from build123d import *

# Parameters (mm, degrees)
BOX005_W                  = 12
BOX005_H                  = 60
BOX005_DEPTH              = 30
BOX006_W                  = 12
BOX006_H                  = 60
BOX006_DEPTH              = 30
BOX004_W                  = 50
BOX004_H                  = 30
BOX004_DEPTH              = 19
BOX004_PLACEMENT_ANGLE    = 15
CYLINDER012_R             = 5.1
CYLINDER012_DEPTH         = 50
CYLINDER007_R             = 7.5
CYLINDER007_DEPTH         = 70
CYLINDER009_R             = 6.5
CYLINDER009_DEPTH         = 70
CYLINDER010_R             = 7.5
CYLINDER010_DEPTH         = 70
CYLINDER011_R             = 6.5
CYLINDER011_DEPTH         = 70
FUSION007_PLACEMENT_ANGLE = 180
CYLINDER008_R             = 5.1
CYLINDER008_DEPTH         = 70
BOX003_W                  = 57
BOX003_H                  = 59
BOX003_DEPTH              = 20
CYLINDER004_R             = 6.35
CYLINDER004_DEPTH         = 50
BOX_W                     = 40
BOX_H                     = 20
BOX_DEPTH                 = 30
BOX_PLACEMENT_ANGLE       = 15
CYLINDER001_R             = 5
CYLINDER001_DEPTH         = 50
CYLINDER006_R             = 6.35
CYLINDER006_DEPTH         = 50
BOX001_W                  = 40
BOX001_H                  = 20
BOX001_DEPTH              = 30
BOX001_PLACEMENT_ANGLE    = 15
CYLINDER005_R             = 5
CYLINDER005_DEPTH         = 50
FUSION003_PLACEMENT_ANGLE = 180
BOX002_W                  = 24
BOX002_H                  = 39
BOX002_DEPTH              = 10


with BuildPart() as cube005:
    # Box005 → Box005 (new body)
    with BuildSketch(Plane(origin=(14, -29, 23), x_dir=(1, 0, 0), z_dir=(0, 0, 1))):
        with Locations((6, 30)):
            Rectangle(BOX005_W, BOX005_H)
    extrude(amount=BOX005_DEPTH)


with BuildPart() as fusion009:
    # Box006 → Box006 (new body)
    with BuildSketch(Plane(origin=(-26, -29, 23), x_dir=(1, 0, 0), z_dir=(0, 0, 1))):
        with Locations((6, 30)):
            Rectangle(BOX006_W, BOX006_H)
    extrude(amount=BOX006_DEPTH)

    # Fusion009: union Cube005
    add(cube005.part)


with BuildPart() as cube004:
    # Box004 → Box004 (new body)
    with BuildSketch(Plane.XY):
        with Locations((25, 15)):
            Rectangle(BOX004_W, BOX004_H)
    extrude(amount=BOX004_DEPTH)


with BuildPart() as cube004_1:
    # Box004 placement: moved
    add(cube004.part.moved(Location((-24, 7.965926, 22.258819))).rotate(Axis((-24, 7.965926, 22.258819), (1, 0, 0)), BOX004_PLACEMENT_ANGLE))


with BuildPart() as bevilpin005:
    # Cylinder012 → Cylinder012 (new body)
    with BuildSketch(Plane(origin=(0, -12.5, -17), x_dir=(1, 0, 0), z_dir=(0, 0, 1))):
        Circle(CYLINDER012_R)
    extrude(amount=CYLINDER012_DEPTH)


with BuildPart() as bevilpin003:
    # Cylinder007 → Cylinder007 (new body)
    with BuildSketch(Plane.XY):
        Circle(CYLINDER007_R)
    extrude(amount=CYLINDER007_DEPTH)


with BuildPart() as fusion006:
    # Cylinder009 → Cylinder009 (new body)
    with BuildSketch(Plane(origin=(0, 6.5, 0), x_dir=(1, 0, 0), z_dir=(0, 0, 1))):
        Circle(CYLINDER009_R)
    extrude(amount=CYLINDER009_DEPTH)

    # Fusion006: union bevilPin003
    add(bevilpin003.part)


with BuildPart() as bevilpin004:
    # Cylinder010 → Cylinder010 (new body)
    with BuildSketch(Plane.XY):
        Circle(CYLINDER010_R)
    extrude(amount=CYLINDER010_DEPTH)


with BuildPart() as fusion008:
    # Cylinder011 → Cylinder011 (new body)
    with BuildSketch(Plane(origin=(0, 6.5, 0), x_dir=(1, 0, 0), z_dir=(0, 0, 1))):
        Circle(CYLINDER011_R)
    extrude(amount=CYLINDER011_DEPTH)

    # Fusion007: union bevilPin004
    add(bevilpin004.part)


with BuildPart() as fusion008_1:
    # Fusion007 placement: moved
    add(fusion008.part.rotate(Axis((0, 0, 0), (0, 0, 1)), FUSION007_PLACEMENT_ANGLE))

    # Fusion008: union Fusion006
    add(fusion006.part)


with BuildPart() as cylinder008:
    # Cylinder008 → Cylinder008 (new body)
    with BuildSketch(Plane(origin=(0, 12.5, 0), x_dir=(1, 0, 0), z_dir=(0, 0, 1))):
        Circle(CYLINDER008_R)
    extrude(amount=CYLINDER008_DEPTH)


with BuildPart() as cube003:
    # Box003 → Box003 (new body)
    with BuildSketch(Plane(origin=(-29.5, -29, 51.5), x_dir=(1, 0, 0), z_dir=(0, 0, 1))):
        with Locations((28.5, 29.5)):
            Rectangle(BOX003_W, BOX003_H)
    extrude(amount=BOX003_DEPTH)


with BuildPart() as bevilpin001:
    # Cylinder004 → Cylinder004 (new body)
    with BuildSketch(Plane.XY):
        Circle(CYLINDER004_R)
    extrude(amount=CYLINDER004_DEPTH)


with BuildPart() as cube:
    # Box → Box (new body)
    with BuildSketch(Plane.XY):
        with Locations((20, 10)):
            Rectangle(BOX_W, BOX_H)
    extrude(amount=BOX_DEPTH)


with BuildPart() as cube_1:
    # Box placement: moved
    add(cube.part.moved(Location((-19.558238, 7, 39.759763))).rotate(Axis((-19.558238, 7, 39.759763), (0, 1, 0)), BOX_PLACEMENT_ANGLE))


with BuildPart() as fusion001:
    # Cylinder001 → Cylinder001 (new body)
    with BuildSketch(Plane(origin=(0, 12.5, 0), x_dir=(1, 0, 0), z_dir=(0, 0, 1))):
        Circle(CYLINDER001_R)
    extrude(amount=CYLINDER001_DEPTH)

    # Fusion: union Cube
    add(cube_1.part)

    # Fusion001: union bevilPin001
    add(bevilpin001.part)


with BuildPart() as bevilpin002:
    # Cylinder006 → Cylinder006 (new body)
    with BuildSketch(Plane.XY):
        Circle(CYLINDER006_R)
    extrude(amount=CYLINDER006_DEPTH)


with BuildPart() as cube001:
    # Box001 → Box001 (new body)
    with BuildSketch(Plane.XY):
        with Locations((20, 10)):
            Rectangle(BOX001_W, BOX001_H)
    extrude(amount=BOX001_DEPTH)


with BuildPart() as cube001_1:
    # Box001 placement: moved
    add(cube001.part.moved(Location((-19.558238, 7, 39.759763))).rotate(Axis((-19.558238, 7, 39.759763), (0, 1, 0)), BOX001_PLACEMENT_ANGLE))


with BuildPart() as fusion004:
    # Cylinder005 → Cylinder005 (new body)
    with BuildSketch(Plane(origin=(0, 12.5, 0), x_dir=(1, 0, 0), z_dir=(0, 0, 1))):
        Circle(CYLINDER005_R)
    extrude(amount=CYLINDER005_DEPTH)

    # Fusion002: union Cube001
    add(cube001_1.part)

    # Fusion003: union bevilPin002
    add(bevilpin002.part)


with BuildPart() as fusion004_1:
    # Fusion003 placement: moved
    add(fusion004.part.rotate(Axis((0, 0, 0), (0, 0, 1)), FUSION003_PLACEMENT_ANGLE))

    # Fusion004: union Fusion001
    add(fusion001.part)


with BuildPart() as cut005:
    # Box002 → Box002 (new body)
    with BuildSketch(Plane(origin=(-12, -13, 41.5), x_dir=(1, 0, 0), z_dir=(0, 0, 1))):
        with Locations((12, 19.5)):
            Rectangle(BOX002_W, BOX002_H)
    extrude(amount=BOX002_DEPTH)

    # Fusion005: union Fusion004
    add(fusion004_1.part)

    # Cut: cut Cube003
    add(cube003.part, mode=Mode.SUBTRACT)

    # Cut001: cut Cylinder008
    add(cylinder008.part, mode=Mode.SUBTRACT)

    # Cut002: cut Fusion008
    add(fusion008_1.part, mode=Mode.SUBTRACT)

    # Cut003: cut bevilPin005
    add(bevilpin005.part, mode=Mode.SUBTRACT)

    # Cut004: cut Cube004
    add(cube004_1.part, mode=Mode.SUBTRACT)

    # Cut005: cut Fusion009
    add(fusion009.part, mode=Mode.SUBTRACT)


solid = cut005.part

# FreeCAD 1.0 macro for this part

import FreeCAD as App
import Part
import Sketcher

V = App.Vector
Q = App.Units.Quantity

doc = App.newDocument("Part")
body = doc.addObject("PartDesign::Body", "Body")

# Sketch on XY plane
sketch1 = body.newObject("Sketcher::SketchObject", "Sketch")
sketch1.AttachmentSupport = (doc.getObject("XY_Plane"), [""])
sketch1.MapMode = "FlatFace"
sketch1.AttachmentOffset = App.Placement(V(0, 0, 23), App.Rotation())
sketch1.addGeometry(Part.LineSegment(V(14, 31, 0), V(14, -29, 0)), False)
sketch1.addGeometry(Part.LineSegment(V(14, -29, 0), V(26, -29, 0)), False)
sketch1.addGeometry(Part.LineSegment(V(26, -29, 0), V(26, 31, 0)), False)
sketch1.addGeometry(Part.LineSegment(V(26, 31, 0), V(14, 31, 0)), False)
sketch1.addConstraint(Sketcher.Constraint("Coincident", 0, 2, 1, 1))
sketch1.addConstraint(Sketcher.Constraint("Coincident", 1, 2, 2, 1))
sketch1.addConstraint(Sketcher.Constraint("Coincident", 2, 2, 3, 1))
sketch1.addConstraint(Sketcher.Constraint("Coincident", 3, 2, 0, 1))
sketch1.addConstraint(Sketcher.Constraint("Vertical", 0))
sketch1.addConstraint(Sketcher.Constraint("Horizontal", 1))
sketch1.addConstraint(Sketcher.Constraint("Vertical", 2))
sketch1.addConstraint(Sketcher.Constraint("Horizontal", 3))
sketch1.addConstraint(Sketcher.Constraint("DistanceX", 1, 1, 1, 2, Q("12 mm")))
sketch1.addConstraint(Sketcher.Constraint("DistanceY", 0, 2, 0, 1, Q("60 mm")))
sketch1.addConstraint(Sketcher.Constraint("DistanceX", -1, 1, 0, 2, Q("14 mm")))
sketch1.addConstraint(Sketcher.Constraint("DistanceY", 0, 2, -1, 1, Q("29 mm")))
pad1 = body.newObject("PartDesign::Pad", "Pad")
pad1.Profile = sketch1
pad1.Length = 30
body2 = doc.addObject("PartDesign::Body", "Body001")
body2.AllowCompound = True

# Sketch on XY plane
sketch2 = body2.newObject("Sketcher::SketchObject", "Sketch001")
sketch2.AttachmentSupport = (doc.getObject("XY_Plane001"), [""])
sketch2.MapMode = "FlatFace"
sketch2.AttachmentOffset = App.Placement(V(0, 0, 23), App.Rotation())
sketch2.addGeometry(Part.LineSegment(V(-26, 31, 0), V(-26, -29, 0)), False)
sketch2.addGeometry(Part.LineSegment(V(-26, -29, 0), V(-14, -29, 0)), False)
sketch2.addGeometry(Part.LineSegment(V(-14, -29, 0), V(-14, 31, 0)), False)
sketch2.addGeometry(Part.LineSegment(V(-14, 31, 0), V(-26, 31, 0)), False)
sketch2.addConstraint(Sketcher.Constraint("Coincident", 0, 2, 1, 1))
sketch2.addConstraint(Sketcher.Constraint("Coincident", 1, 2, 2, 1))
sketch2.addConstraint(Sketcher.Constraint("Coincident", 2, 2, 3, 1))
sketch2.addConstraint(Sketcher.Constraint("Coincident", 3, 2, 0, 1))
sketch2.addConstraint(Sketcher.Constraint("Vertical", 0))
sketch2.addConstraint(Sketcher.Constraint("Horizontal", 1))
sketch2.addConstraint(Sketcher.Constraint("Vertical", 2))
sketch2.addConstraint(Sketcher.Constraint("Horizontal", 3))
sketch2.addConstraint(Sketcher.Constraint("DistanceX", 1, 1, 1, 2, Q("12 mm")))
sketch2.addConstraint(Sketcher.Constraint("DistanceY", 0, 2, 0, 1, Q("60 mm")))
sketch2.addConstraint(Sketcher.Constraint("DistanceX", 0, 2, -1, 1, Q("26 mm")))
sketch2.addConstraint(Sketcher.Constraint("DistanceY", 0, 2, -1, 1, Q("29 mm")))
pad2 = body2.newObject("PartDesign::Pad", "Pad001")
pad2.Profile = sketch2
pad2.Length = 30
doc.recompute()

boolean = body2.newObject("PartDesign::Boolean", "Boolean")
boolean.Type = "Fuse"
boolean.addObjects([body])
body3 = doc.addObject("PartDesign::Body", "Body002")

# Sketch on XY plane
sketch3 = body3.newObject("Sketcher::SketchObject", "Sketch002")
sketch3.AttachmentSupport = (doc.getObject("XY_Plane002"), [""])
sketch3.MapMode = "FlatFace"
sketch3.addGeometry(Part.LineSegment(V(0, 30, 0), V(0, 0, 0)), False)
sketch3.addGeometry(Part.LineSegment(V(0, 0, 0), V(50, 0, 0)), False)
sketch3.addGeometry(Part.LineSegment(V(50, 0, 0), V(50, 30, 0)), False)
sketch3.addGeometry(Part.LineSegment(V(50, 30, 0), V(0, 30, 0)), False)
sketch3.addConstraint(Sketcher.Constraint("Coincident", 0, 2, 1, 1))
sketch3.addConstraint(Sketcher.Constraint("Coincident", 1, 2, 2, 1))
sketch3.addConstraint(Sketcher.Constraint("Coincident", 2, 2, 3, 1))
sketch3.addConstraint(Sketcher.Constraint("Coincident", 3, 2, 0, 1))
sketch3.addConstraint(Sketcher.Constraint("Vertical", 0))
sketch3.addConstraint(Sketcher.Constraint("Horizontal", 1))
sketch3.addConstraint(Sketcher.Constraint("Vertical", 2))
sketch3.addConstraint(Sketcher.Constraint("Horizontal", 3))
sketch3.addConstraint(Sketcher.Constraint("Coincident", 0, 2, -1, 1))
sketch3.addConstraint(Sketcher.Constraint("DistanceX", 1, 1, 1, 2, Q("50 mm")))
sketch3.addConstraint(Sketcher.Constraint("DistanceY", 0, 2, 0, 1, Q("30 mm")))
pad3 = body3.newObject("PartDesign::Pad", "Pad002")
pad3.Profile = sketch3
pad3.Length = 19
body4 = doc.addObject("PartDesign::Body", "Body003")
doc.recompute()

body3.Placement = App.Placement(V(-24, 7.965926, 22.258819), App.Rotation(V(1, 0, 0), 15))
boolean2 = body4.newObject("PartDesign::Boolean", "Boolean001")
boolean2.Type = "Fuse"
boolean2.addObjects([body3])
body5 = doc.addObject("PartDesign::Body", "Body004")

# Sketch on XY plane
sketch4 = body5.newObject("Sketcher::SketchObject", "Sketch003")
sketch4.AttachmentSupport = (doc.getObject("XY_Plane004"), [""])
sketch4.MapMode = "FlatFace"
sketch4.AttachmentOffset = App.Placement(V(0, 0, -17), App.Rotation())
sketch4.addGeometry(Part.Circle(V(0, -12.5, 0), V(0, 0, 1), 5.1), False)
sketch4.addConstraint(Sketcher.Constraint("PointOnObject", 0, 3, -2))
sketch4.addConstraint(Sketcher.Constraint("Diameter", 0, Q("10.2 mm")))
sketch4.addConstraint(Sketcher.Constraint("DistanceY", 0, 3, -1, 1, Q("12.5 mm")))
pad4 = body5.newObject("PartDesign::Pad", "Pad003")
pad4.Profile = sketch4
pad4.Length = 50
body6 = doc.addObject("PartDesign::Body", "Body005")

# Sketch on XY plane
sketch5 = body6.newObject("Sketcher::SketchObject", "Sketch004")
sketch5.AttachmentSupport = (doc.getObject("XY_Plane005"), [""])
sketch5.MapMode = "FlatFace"
sketch5.addGeometry(Part.Circle(V(0, 0, 0), V(0, 0, 1), 7.5), False)
sketch5.addConstraint(Sketcher.Constraint("Coincident", 0, 3, -1, 1))
sketch5.addConstraint(Sketcher.Constraint("Diameter", 0, Q("15 mm")))
pad5 = body6.newObject("PartDesign::Pad", "Pad004")
pad5.Profile = sketch5
pad5.Length = 70
body7 = doc.addObject("PartDesign::Body", "Body006")

# Sketch on XY plane
sketch6 = body7.newObject("Sketcher::SketchObject", "Sketch005")
sketch6.AttachmentSupport = (doc.getObject("XY_Plane006"), [""])
sketch6.MapMode = "FlatFace"
sketch6.addGeometry(Part.Circle(V(0, 6.5, 0), V(0, 0, 1), 6.5), False)
sketch6.addConstraint(Sketcher.Constraint("PointOnObject", 0, 3, -2))
sketch6.addConstraint(Sketcher.Constraint("Diameter", 0, Q("13 mm")))
sketch6.addConstraint(Sketcher.Constraint("DistanceY", -1, 1, 0, 3, Q("6.5 mm")))
pad6 = body7.newObject("PartDesign::Pad", "Pad005")
pad6.Profile = sketch6
pad6.Length = 70
doc.recompute()

boolean3 = body7.newObject("PartDesign::Boolean", "Boolean002")
boolean3.Type = "Fuse"
boolean3.addObjects([body6])
body8 = doc.addObject("PartDesign::Body", "Body007")

# Sketch on XY plane
sketch7 = body8.newObject("Sketcher::SketchObject", "Sketch006")
sketch7.AttachmentSupport = (doc.getObject("XY_Plane007"), [""])
sketch7.MapMode = "FlatFace"
sketch7.addGeometry(Part.Circle(V(0, 0, 0), V(0, 0, 1), 7.5), False)
sketch7.addConstraint(Sketcher.Constraint("Coincident", 0, 3, -1, 1))
sketch7.addConstraint(Sketcher.Constraint("Diameter", 0, Q("15 mm")))
pad7 = body8.newObject("PartDesign::Pad", "Pad006")
pad7.Profile = sketch7
pad7.Length = 70
body9 = doc.addObject("PartDesign::Body", "Body008")

# Sketch on XY plane
sketch8 = body9.newObject("Sketcher::SketchObject", "Sketch007")
sketch8.AttachmentSupport = (doc.getObject("XY_Plane008"), [""])
sketch8.MapMode = "FlatFace"
sketch8.addGeometry(Part.Circle(V(0, 6.5, 0), V(0, 0, 1), 6.5), False)
sketch8.addConstraint(Sketcher.Constraint("PointOnObject", 0, 3, -2))
sketch8.addConstraint(Sketcher.Constraint("Diameter", 0, Q("13 mm")))
sketch8.addConstraint(Sketcher.Constraint("DistanceY", -1, 1, 0, 3, Q("6.5 mm")))
pad8 = body9.newObject("PartDesign::Pad", "Pad007")
pad8.Profile = sketch8
pad8.Length = 70
doc.recompute()

boolean4 = body9.newObject("PartDesign::Boolean", "Boolean003")
boolean4.Type = "Fuse"
boolean4.addObjects([body8])
body10 = doc.addObject("PartDesign::Body", "Body009")
doc.recompute()

body9.Placement = App.Placement(V(0, 0, 0), App.Rotation(V(0, 0, 1), 180))
boolean5 = body10.newObject("PartDesign::Boolean", "Boolean004")
boolean5.Type = "Fuse"
boolean5.addObjects([body9])
doc.recompute()

boolean6 = body10.newObject("PartDesign::Boolean", "Boolean005")
boolean6.Type = "Fuse"
boolean6.addObjects([body7])
body11 = doc.addObject("PartDesign::Body", "Body010")

# Sketch on XY plane
sketch9 = body11.newObject("Sketcher::SketchObject", "Sketch008")
sketch9.AttachmentSupport = (doc.getObject("XY_Plane010"), [""])
sketch9.MapMode = "FlatFace"
sketch9.addGeometry(Part.Circle(V(0, 12.5, 0), V(0, 0, 1), 5.1), False)
sketch9.addConstraint(Sketcher.Constraint("PointOnObject", 0, 3, -2))
sketch9.addConstraint(Sketcher.Constraint("Diameter", 0, Q("10.2 mm")))
sketch9.addConstraint(Sketcher.Constraint("DistanceY", -1, 1, 0, 3, Q("12.5 mm")))
pad9 = body11.newObject("PartDesign::Pad", "Pad008")
pad9.Profile = sketch9
pad9.Length = 70
body12 = doc.addObject("PartDesign::Body", "Body011")

# Sketch on XY plane
sketch10 = body12.newObject("Sketcher::SketchObject", "Sketch009")
sketch10.AttachmentSupport = (doc.getObject("XY_Plane011"), [""])
sketch10.MapMode = "FlatFace"
sketch10.AttachmentOffset = App.Placement(V(0, 0, 51.5), App.Rotation())
sketch10.addGeometry(Part.LineSegment(V(-29.5, 30, 0), V(-29.5, -29, 0)), False)
sketch10.addGeometry(Part.LineSegment(V(-29.5, -29, 0), V(27.5, -29, 0)), False)
sketch10.addGeometry(Part.LineSegment(V(27.5, -29, 0), V(27.5, 30, 0)), False)
sketch10.addGeometry(Part.LineSegment(V(27.5, 30, 0), V(-29.5, 30, 0)), False)
sketch10.addConstraint(Sketcher.Constraint("Coincident", 0, 2, 1, 1))
sketch10.addConstraint(Sketcher.Constraint("Coincident", 1, 2, 2, 1))
sketch10.addConstraint(Sketcher.Constraint("Coincident", 2, 2, 3, 1))
sketch10.addConstraint(Sketcher.Constraint("Coincident", 3, 2, 0, 1))
sketch10.addConstraint(Sketcher.Constraint("Vertical", 0))
sketch10.addConstraint(Sketcher.Constraint("Horizontal", 1))
sketch10.addConstraint(Sketcher.Constraint("Vertical", 2))
sketch10.addConstraint(Sketcher.Constraint("Horizontal", 3))
sketch10.addConstraint(Sketcher.Constraint("DistanceX", 1, 1, 1, 2, Q("57 mm")))
sketch10.addConstraint(Sketcher.Constraint("DistanceY", 0, 2, 0, 1, Q("59 mm")))
sketch10.addConstraint(Sketcher.Constraint("DistanceY", 0, 2, -1, 1, Q("29 mm")))
sketch10.addConstraint(Sketcher.Constraint("DistanceX", 0, 2, -1, 1, Q("29.5 mm")))
pad10 = body12.newObject("PartDesign::Pad", "Pad009")
pad10.Profile = sketch10
pad10.Length = 20
body13 = doc.addObject("PartDesign::Body", "Body012")

# Sketch on XY plane
sketch11 = body13.newObject("Sketcher::SketchObject", "Sketch010")
sketch11.AttachmentSupport = (doc.getObject("XY_Plane012"), [""])
sketch11.MapMode = "FlatFace"
sketch11.addGeometry(Part.Circle(V(0, 0, 0), V(0, 0, 1), 6.35), False)
sketch11.addConstraint(Sketcher.Constraint("Coincident", 0, 3, -1, 1))
sketch11.addConstraint(Sketcher.Constraint("Diameter", 0, Q("12.7 mm")))
pad11 = body13.newObject("PartDesign::Pad", "Pad010")
pad11.Profile = sketch11
pad11.Length = 50
body14 = doc.addObject("PartDesign::Body", "Body013")

# Sketch on XY plane
sketch12 = body14.newObject("Sketcher::SketchObject", "Sketch011")
sketch12.AttachmentSupport = (doc.getObject("XY_Plane013"), [""])
sketch12.MapMode = "FlatFace"
sketch12.addGeometry(Part.LineSegment(V(0, 20, 0), V(0, 0, 0)), False)
sketch12.addGeometry(Part.LineSegment(V(0, 0, 0), V(40, 0, 0)), False)
sketch12.addGeometry(Part.LineSegment(V(40, 0, 0), V(40, 20, 0)), False)
sketch12.addGeometry(Part.LineSegment(V(40, 20, 0), V(0, 20, 0)), False)
sketch12.addConstraint(Sketcher.Constraint("Coincident", 0, 2, 1, 1))
sketch12.addConstraint(Sketcher.Constraint("Coincident", 1, 2, 2, 1))
sketch12.addConstraint(Sketcher.Constraint("Coincident", 2, 2, 3, 1))
sketch12.addConstraint(Sketcher.Constraint("Coincident", 3, 2, 0, 1))
sketch12.addConstraint(Sketcher.Constraint("Vertical", 0))
sketch12.addConstraint(Sketcher.Constraint("Horizontal", 1))
sketch12.addConstraint(Sketcher.Constraint("Vertical", 2))
sketch12.addConstraint(Sketcher.Constraint("Horizontal", 3))
sketch12.addConstraint(Sketcher.Constraint("Coincident", 0, 2, -1, 1))
sketch12.addConstraint(Sketcher.Constraint("DistanceX", 1, 1, 1, 2, Q("40 mm")))
sketch12.addConstraint(Sketcher.Constraint("DistanceY", 0, 2, 0, 1, Q("20 mm")))
pad12 = body14.newObject("PartDesign::Pad", "Pad011")
pad12.Profile = sketch12
pad12.Length = 30
body15 = doc.addObject("PartDesign::Body", "Body014")
doc.recompute()

body14.Placement = App.Placement(V(-19.558238, 7, 39.759763), App.Rotation(V(0, 1, 0), 15))
boolean7 = body15.newObject("PartDesign::Boolean", "Boolean006")
boolean7.Type = "Fuse"
boolean7.addObjects([body14])
body16 = doc.addObject("PartDesign::Body", "Body015")
body16.AllowCompound = True

# Sketch on XY plane
sketch13 = body16.newObject("Sketcher::SketchObject", "Sketch012")
sketch13.AttachmentSupport = (doc.getObject("XY_Plane015"), [""])
sketch13.MapMode = "FlatFace"
sketch13.addGeometry(Part.Circle(V(0, 12.5, 0), V(0, 0, 1), 5), False)
sketch13.addConstraint(Sketcher.Constraint("PointOnObject", 0, 3, -2))
sketch13.addConstraint(Sketcher.Constraint("Diameter", 0, Q("10 mm")))
sketch13.addConstraint(Sketcher.Constraint("DistanceY", -1, 1, 0, 3, Q("12.5 mm")))
pad13 = body16.newObject("PartDesign::Pad", "Pad012")
pad13.Profile = sketch13
pad13.Length = 50
doc.recompute()

boolean8 = body16.newObject("PartDesign::Boolean", "Boolean007")
boolean8.Type = "Fuse"
boolean8.addObjects([body15])
doc.recompute()

boolean9 = body16.newObject("PartDesign::Boolean", "Boolean008")
boolean9.Type = "Fuse"
boolean9.addObjects([body13])
body17 = doc.addObject("PartDesign::Body", "Body016")

# Sketch on XY plane
sketch14 = body17.newObject("Sketcher::SketchObject", "Sketch013")
sketch14.AttachmentSupport = (doc.getObject("XY_Plane016"), [""])
sketch14.MapMode = "FlatFace"
sketch14.addGeometry(Part.Circle(V(0, 0, 0), V(0, 0, 1), 6.35), False)
sketch14.addConstraint(Sketcher.Constraint("Coincident", 0, 3, -1, 1))
sketch14.addConstraint(Sketcher.Constraint("Diameter", 0, Q("12.7 mm")))
pad14 = body17.newObject("PartDesign::Pad", "Pad013")
pad14.Profile = sketch14
pad14.Length = 50
body18 = doc.addObject("PartDesign::Body", "Body017")

# Sketch on XY plane
sketch15 = body18.newObject("Sketcher::SketchObject", "Sketch014")
sketch15.AttachmentSupport = (doc.getObject("XY_Plane017"), [""])
sketch15.MapMode = "FlatFace"
sketch15.addGeometry(Part.LineSegment(V(0, 20, 0), V(0, 0, 0)), False)
sketch15.addGeometry(Part.LineSegment(V(0, 0, 0), V(40, 0, 0)), False)
sketch15.addGeometry(Part.LineSegment(V(40, 0, 0), V(40, 20, 0)), False)
sketch15.addGeometry(Part.LineSegment(V(40, 20, 0), V(0, 20, 0)), False)
sketch15.addConstraint(Sketcher.Constraint("Coincident", 0, 2, 1, 1))
sketch15.addConstraint(Sketcher.Constraint("Coincident", 1, 2, 2, 1))
sketch15.addConstraint(Sketcher.Constraint("Coincident", 2, 2, 3, 1))
sketch15.addConstraint(Sketcher.Constraint("Coincident", 3, 2, 0, 1))
sketch15.addConstraint(Sketcher.Constraint("Vertical", 0))
sketch15.addConstraint(Sketcher.Constraint("Horizontal", 1))
sketch15.addConstraint(Sketcher.Constraint("Vertical", 2))
sketch15.addConstraint(Sketcher.Constraint("Horizontal", 3))
sketch15.addConstraint(Sketcher.Constraint("Coincident", 0, 2, -1, 1))
sketch15.addConstraint(Sketcher.Constraint("DistanceX", 1, 1, 1, 2, Q("40 mm")))
sketch15.addConstraint(Sketcher.Constraint("DistanceY", 0, 2, 0, 1, Q("20 mm")))
pad15 = body18.newObject("PartDesign::Pad", "Pad014")
pad15.Profile = sketch15
pad15.Length = 30
body19 = doc.addObject("PartDesign::Body", "Body018")
doc.recompute()

body18.Placement = App.Placement(V(-19.558238, 7, 39.759763), App.Rotation(V(0, 1, 0), 15))
boolean10 = body19.newObject("PartDesign::Boolean", "Boolean009")
boolean10.Type = "Fuse"
boolean10.addObjects([body18])
body20 = doc.addObject("PartDesign::Body", "Body019")
body20.AllowCompound = True

# Sketch on XY plane
sketch16 = body20.newObject("Sketcher::SketchObject", "Sketch015")
sketch16.AttachmentSupport = (doc.getObject("XY_Plane019"), [""])
sketch16.MapMode = "FlatFace"
sketch16.addGeometry(Part.Circle(V(0, 12.5, 0), V(0, 0, 1), 5), False)
sketch16.addConstraint(Sketcher.Constraint("PointOnObject", 0, 3, -2))
sketch16.addConstraint(Sketcher.Constraint("Diameter", 0, Q("10 mm")))
sketch16.addConstraint(Sketcher.Constraint("DistanceY", -1, 1, 0, 3, Q("12.5 mm")))
pad16 = body20.newObject("PartDesign::Pad", "Pad015")
pad16.Profile = sketch16
pad16.Length = 50
doc.recompute()

boolean11 = body20.newObject("PartDesign::Boolean", "Boolean010")
boolean11.Type = "Fuse"
boolean11.addObjects([body19])
doc.recompute()

boolean12 = body20.newObject("PartDesign::Boolean", "Boolean011")
boolean12.Type = "Fuse"
boolean12.addObjects([body17])
body21 = doc.addObject("PartDesign::Body", "Body020")
body21.AllowCompound = True
doc.recompute()

body20.Placement = App.Placement(V(0, 0, 0), App.Rotation(V(0, 0, 1), 180))
boolean13 = body21.newObject("PartDesign::Boolean", "Boolean012")
boolean13.Type = "Fuse"
boolean13.addObjects([body20])
doc.recompute()

boolean14 = body21.newObject("PartDesign::Boolean", "Boolean013")
boolean14.Type = "Fuse"
boolean14.addObjects([body16])
body22 = doc.addObject("PartDesign::Body", "Body021")

# Sketch on XY plane
sketch17 = body22.newObject("Sketcher::SketchObject", "Sketch016")
sketch17.AttachmentSupport = (doc.getObject("XY_Plane021"), [""])
sketch17.MapMode = "FlatFace"
sketch17.AttachmentOffset = App.Placement(V(0, 0, 41.5), App.Rotation())
sketch17.addGeometry(Part.LineSegment(V(-12, 26, 0), V(-12, -13, 0)), False)
sketch17.addGeometry(Part.LineSegment(V(-12, -13, 0), V(12, -13, 0)), False)
sketch17.addGeometry(Part.LineSegment(V(12, -13, 0), V(12, 26, 0)), False)
sketch17.addGeometry(Part.LineSegment(V(12, 26, 0), V(-12, 26, 0)), False)
sketch17.addConstraint(Sketcher.Constraint("Coincident", 0, 2, 1, 1))
sketch17.addConstraint(Sketcher.Constraint("Coincident", 1, 2, 2, 1))
sketch17.addConstraint(Sketcher.Constraint("Coincident", 2, 2, 3, 1))
sketch17.addConstraint(Sketcher.Constraint("Coincident", 3, 2, 0, 1))
sketch17.addConstraint(Sketcher.Constraint("Vertical", 0))
sketch17.addConstraint(Sketcher.Constraint("Horizontal", 1))
sketch17.addConstraint(Sketcher.Constraint("Vertical", 2))
sketch17.addConstraint(Sketcher.Constraint("Horizontal", 3))
sketch17.addConstraint(Sketcher.Constraint("DistanceX", 1, 1, 1, 2, Q("24 mm")))
sketch17.addConstraint(Sketcher.Constraint("DistanceY", 0, 2, 0, 1, Q("39 mm")))
sketch17.addConstraint(Sketcher.Constraint("DistanceX", 0, 2, -1, 1, Q("12 mm")))
sketch17.addConstraint(Sketcher.Constraint("DistanceY", 0, 2, -1, 1, Q("13 mm")))
pad17 = body22.newObject("PartDesign::Pad", "Pad016")
pad17.Profile = sketch17
pad17.Length = 10
doc.recompute()

boolean15 = body22.newObject("PartDesign::Boolean", "Boolean014")
boolean15.Type = "Fuse"
boolean15.addObjects([body21])
doc.recompute()

boolean16 = body22.newObject("PartDesign::Boolean", "Boolean015")
boolean16.Type = "Cut"
boolean16.addObjects([body12])
doc.recompute()

boolean17 = body22.newObject("PartDesign::Boolean", "Boolean016")
boolean17.Type = "Cut"
boolean17.addObjects([body11])
doc.recompute()

boolean18 = body22.newObject("PartDesign::Boolean", "Boolean017")
boolean18.Type = "Cut"
boolean18.addObjects([body10])
doc.recompute()

boolean19 = body22.newObject("PartDesign::Boolean", "Boolean018")
boolean19.Type = "Cut"
boolean19.addObjects([body5])
doc.recompute()

boolean20 = body22.newObject("PartDesign::Boolean", "Boolean019")
boolean20.Type = "Cut"
boolean20.addObjects([body4])
doc.recompute()

boolean21 = body22.newObject("PartDesign::Boolean", "Boolean020")
boolean21.Type = "Cut"
boolean21.addObjects([body2])

doc.recompute()
